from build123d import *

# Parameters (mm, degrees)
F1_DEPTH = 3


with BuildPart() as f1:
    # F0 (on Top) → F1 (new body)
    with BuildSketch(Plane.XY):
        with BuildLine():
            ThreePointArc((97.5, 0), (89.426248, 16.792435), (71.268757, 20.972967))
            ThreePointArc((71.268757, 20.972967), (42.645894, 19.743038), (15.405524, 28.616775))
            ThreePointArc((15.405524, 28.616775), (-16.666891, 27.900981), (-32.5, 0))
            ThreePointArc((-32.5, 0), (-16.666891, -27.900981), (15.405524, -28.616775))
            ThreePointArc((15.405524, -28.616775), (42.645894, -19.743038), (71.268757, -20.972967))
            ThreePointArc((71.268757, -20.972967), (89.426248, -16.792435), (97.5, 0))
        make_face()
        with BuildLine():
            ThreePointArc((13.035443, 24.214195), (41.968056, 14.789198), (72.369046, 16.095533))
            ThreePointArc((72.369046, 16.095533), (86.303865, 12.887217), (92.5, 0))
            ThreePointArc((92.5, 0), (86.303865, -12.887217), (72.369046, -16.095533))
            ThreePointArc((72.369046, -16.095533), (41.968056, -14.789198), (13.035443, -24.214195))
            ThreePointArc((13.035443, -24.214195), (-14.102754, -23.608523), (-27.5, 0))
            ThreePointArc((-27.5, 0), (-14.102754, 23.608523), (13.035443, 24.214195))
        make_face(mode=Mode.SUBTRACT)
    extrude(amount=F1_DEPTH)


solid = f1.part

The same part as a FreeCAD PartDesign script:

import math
import FreeCAD as App
import Part
import Sketcher

doc = App.newDocument("Part")
params = doc.addObject("Spreadsheet::Sheet", "Params")
for row, (alias, value) in enumerate([
    ("sketch1_radius", "21.5 mm"),
    ("sketch1_radius2", "32.5 mm"),
    ("sketch1_radius3", "27.5 mm"),
    ("pad1_length", "3 mm"),
], start=1):
    params.set(f"A{row}", alias)
    params.set(f"B{row}", "=" + value)
    params.setAlias(f"B{row}", alias)

body = doc.addObject("PartDesign::Body", "Body")

# Sketch on XY plane
sketch1 = doc.addObject("Sketcher::SketchObject", "Sketch")
body.addObject(sketch1)
sketch1.AttachmentSupport = (doc.XY_Plane, [""])
sketch1.MapMode = "FlatFace"
sketch1.addGeometry(Part.ArcOfCircle(Part.Circle(App.Vector(76, 0, 0), App.Vector(0, 0, 1), 21), math.radians(0), math.radians(103)), False)
sketch1.addGeometry(Part.ArcOfCircle(Part.Circle(App.Vector(54, 99, 0), App.Vector(0, 0, 1), 80), math.radians(-118), math.radians(-77)), False)
sketch1.addGeometry(Part.ArcOfCircle(Part.Circle(App.Vector(0, 0, 0), App.Vector(0, 0, 1), 32), math.radians(62), math.radians(180)), False)
sketch1.addGeometry(Part.ArcOfCircle(Part.Circle(App.Vector(0, 0, 0), App.Vector(0, 0, 1), 32), math.radians(180), math.radians(298)), False)
sketch1.addGeometry(Part.ArcOfCircle(Part.Circle(App.Vector(54, -99, 0), App.Vector(0, 0, 1), 80), math.radians(77), math.radians(118)), False)
sketch1.addGeometry(Part.ArcOfCircle(Part.Circle(App.Vector(76, 0, 0), App.Vector(0, 0, 1), 21), math.radians(-103), math.radians(0)), False)
sketch1.addGeometry(Part.ArcOfCircle(Part.Circle(App.Vector(0, 0, 0), App.Vector(0, 0, 1), 27), math.radians(62), math.radians(180)), False)
sketch1.addGeometry(Part.ArcOfCircle(Part.Circle(App.Vector(54, 99, 0), App.Vector(0, 0, 1), 85), math.radians(-118), math.radians(-77)), False)
sketch1.addGeometry(Part.ArcOfCircle(Part.Circle(App.Vector(76, 0, 0), App.Vector(0, 0, 1), 17), math.radians(0), math.radians(103)), False)
sketch1.addGeometry(Part.ArcOfCircle(Part.Circle(App.Vector(76, 0, 0), App.Vector(0, 0, 1), 17), math.radians(-103), math.radians(0)), False)
sketch1.addGeometry(Part.ArcOfCircle(Part.Circle(App.Vector(54, -99, 0), App.Vector(0, 0, 1), 85), math.radians(77), math.radians(118)), False)
sketch1.addGeometry(Part.ArcOfCircle(Part.Circle(App.Vector(0, 0, 0), App.Vector(0, 0, 1), 27), math.radians(180), math.radians(298)), False)
sketch1.addConstraint(Sketcher.Constraint("Tangent", 0, 2, 1, 2))
sketch1.addConstraint(Sketcher.Constraint("Tangent", 1, 1, 2, 1))
sketch1.addConstraint(Sketcher.Constraint("Tangent", 2, 2, 3, 1))
sketch1.addConstraint(Sketcher.Constraint("Tangent", 3, 2, 4, 2))
sketch1.addConstraint(Sketcher.Constraint("Tangent", 4, 1, 5, 1))
sketch1.addConstraint(Sketcher.Constraint("Tangent", 5, 2, 0, 1))
sketch1.addConstraint(Sketcher.Constraint("Tangent", 6, 1, 7, 1))
sketch1.addConstraint(Sketcher.Constraint("Tangent", 7, 2, 8, 2))
sketch1.addConstraint(Sketcher.Constraint("Tangent", 8, 1, 9, 2))
sketch1.addConstraint(Sketcher.Constraint("Tangent", 9, 1, 10, 1))
sketch1.addConstraint(Sketcher.Constraint("Tangent", 10, 2, 11, 2))
sketch1.addConstraint(Sketcher.Constraint("Tangent", 11, 1, 6, 2))
sketch1.addConstraint(Sketcher.Constraint("Coincident", 2, 3, -1, 1))
sketch1.addConstraint(Sketcher.Constraint("Coincident", 6, 3, -1, 1))
sketch1.addConstraint(Sketcher.Constraint("Coincident", 7, 3, 1, 3))
sketch1.addConstraint(Sketcher.Constraint("Coincident", 8, 3, 0, 3))
sketch1.addConstraint(Sketcher.Constraint("Coincident", 10, 3, 4, 3))
sketch1.addConstraint(Sketcher.Constraint("Equal", 2, 3))
sketch1.addConstraint(Sketcher.Constraint("Equal", 1, 4))
sketch1.addConstraint(Sketcher.Constraint("Equal", 0, 5))
sketch1.addConstraint(Sketcher.Constraint("Equal", 8, 9))
sketch1.addConstraint(Sketcher.Constraint("PointOnObject", 0, 3, -1))
sketch1.addConstraint(Sketcher.Constraint("PointOnObject", 2, 2, -1))
sketch1.addConstraint(Sketcher.Constraint("PointOnObject", 5, 2, -1))
sketch1.addConstraint(Sketcher.Constraint("PointOnObject", 8, 1, -1))
sketch1.addConstraint(Sketcher.Constraint("PointOnObject", 11, 1, -1))
sketch1.addConstraint(Sketcher.Constraint("Radius", 0, 21.5))
sketch1.addConstraint(Sketcher.Constraint("Radius", 2, 32.5))
sketch1.addConstraint(Sketcher.Constraint("Radius", 6, 27.5))
sketch1.addConstraint(Sketcher.Constraint("DistanceX", -1, 1, 0, 3, 76.0))
sketch1.addConstraint(Sketcher.Constraint("Radius", 1, 80.485996))
sketch1.setExpression("Constraints[26]", "Params.sketch1_radius")
sketch1.setExpression("Constraints[27]", "Params.sketch1_radius2")
sketch1.setExpression("Constraints[28]", "Params.sketch1_radius3")
pad1 = doc.addObject("PartDesign::Pad", "Pad")
body.addObject(pad1)
pad1.Profile = sketch1
pad1.setExpression("Length", "Params.pad1_length")

doc.recompute()
